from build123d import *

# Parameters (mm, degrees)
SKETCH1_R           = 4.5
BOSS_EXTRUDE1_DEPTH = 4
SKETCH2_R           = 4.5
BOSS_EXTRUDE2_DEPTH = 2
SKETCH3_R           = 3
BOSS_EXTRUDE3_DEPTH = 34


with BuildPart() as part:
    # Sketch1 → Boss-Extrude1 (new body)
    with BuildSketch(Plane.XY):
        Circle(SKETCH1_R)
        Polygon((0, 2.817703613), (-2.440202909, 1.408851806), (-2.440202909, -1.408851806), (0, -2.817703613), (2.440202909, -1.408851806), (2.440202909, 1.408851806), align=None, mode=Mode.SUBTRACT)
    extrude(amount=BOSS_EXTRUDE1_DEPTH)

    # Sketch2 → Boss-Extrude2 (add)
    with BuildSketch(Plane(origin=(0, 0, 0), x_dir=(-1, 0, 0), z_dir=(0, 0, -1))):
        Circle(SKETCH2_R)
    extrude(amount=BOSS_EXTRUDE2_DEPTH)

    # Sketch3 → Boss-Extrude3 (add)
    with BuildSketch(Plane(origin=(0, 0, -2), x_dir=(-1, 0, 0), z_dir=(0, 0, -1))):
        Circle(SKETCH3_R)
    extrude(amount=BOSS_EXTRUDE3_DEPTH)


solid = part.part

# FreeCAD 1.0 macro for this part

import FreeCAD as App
import Part
import Sketcher

V = App.Vector
Q = App.Units.Quantity

doc = App.newDocument("Part")
params = doc.addObject("Spreadsheet::Sheet", "Params")
for row, (alias, value) in enumerate([
    ("sketch1_diameter", "9 mm"),
    ("pad1_length", "4 mm"),
    ("sketch2_diameter", "9 mm"),
    ("pad2_length", "2 mm"),
    ("sketch3_diameter", "6 mm"),
    ("pad3_length", "34 mm"),
], start=1):
    params.set(f"A{row}", alias)
    params.set(f"B{row}", "=" + value)
    params.setAlias(f"B{row}", alias)

body = doc.addObject("PartDesign::Body", "Body")

# Sketch on XY plane
sketch1 = body.newObject("Sketcher::SketchObject", "Sketch")
sketch1.AttachmentSupport = (doc.getObject("XY_Plane"), [""])
sketch1.MapMode = "FlatFace"
sketch1.addGeometry([
    Part.Circle(V(0, 0, 0), V(0, 0, 1), 4.5),  # 0
    Part.LineSegment(V(-2.4, 1.4, 0), V(0, 2.8, 0)),  # 1
    Part.LineSegment(V(0, 2.8, 0), V(2.4, 1.4, 0)),  # 2
    Part.LineSegment(V(2.4, 1.4, 0), V(2.4, -1.4, 0)),  # 3
    Part.LineSegment(V(2.4, -1.4, 0), V(0, -2.8, 0)),  # 4
    Part.LineSegment(V(0, -2.8, 0), V(-2.4, -1.4, 0)),  # 5
    Part.LineSegment(V(-2.4, -1.4, 0), V(-2.4, 1.4, 0)),  # 6
], False)
sketch1.addConstraint([
    Sketcher.Constraint("Coincident", 1, 2, 2, 1),
    Sketcher.Constraint("Coincident", 2, 2, 3, 1),
    Sketcher.Constraint("Coincident", 3, 2, 4, 1),
    Sketcher.Constraint("Coincident", 4, 2, 5, 1),
    Sketcher.Constraint("Coincident", 5, 2, 6, 1),
    Sketcher.Constraint("Coincident", 6, 2, 1, 1),
    Sketcher.Constraint("Vertical", 3),
    Sketcher.Constraint("Vertical", 6),
    Sketcher.Constraint("Coincident", 0, 3, -1, 1),
    Sketcher.Constraint("Symmetric", 1, 2, 4, 2, -1, 1),
    Sketcher.Constraint("Symmetric", 2, 2, 5, 2, -1, 1),
    Sketcher.Constraint("PointOnObject", 1, 2, -2),
    Sketcher.Constraint("Parallel", 1, 4),
    Sketcher.Constraint("Horizontal", 3, 2, 5, 2),
    Sketcher.Constraint("Diameter", 0, Q("9 mm")),
    Sketcher.Constraint("Angle", 1, Q("30 deg")),
    Sketcher.Constraint("DistanceY", 3, 2, 3, 1, Q("2.817704 mm")),
    Sketcher.Constraint("DistanceY", 2, 2, 1, 2, Q("1.408852 mm")),
])
sketch1.setExpression("Constraints[14]", "Params.sketch1_diameter")
pad1 = body.newObject("PartDesign::Pad", "Pad")
pad1.Profile = sketch1
pad1.setExpression("Length", "Params.pad1_length")

# Sketch on XY plane
sketch2 = body.newObject("Sketcher::SketchObject", "Sketch001")
sketch2.AttachmentSupport = (doc.getObject("XY_Plane"), [""])
sketch2.MapMode = "FlatFace"
sketch2.addGeometry(Part.Circle(V(0, 0, 0), V(0, 0, 1), 4.5), False)
sketch2.addConstraint([
    Sketcher.Constraint("Coincident", 0, 3, -1, 1),
    Sketcher.Constraint("Diameter", 0, Q("9 mm")),
])
sketch2.setExpression("Constraints[1]", "Params.sketch2_diameter")
pad2 = body.newObject("PartDesign::Pad", "Pad001")
pad2.Profile = sketch2
pad2.setExpression("Length", "Params.pad2_length")
pad2.Reversed = True

# Sketch on XY plane
sketch3 = body.newObject("Sketcher::SketchObject", "Sketch002")
sketch3.AttachmentSupport = (doc.getObject("XY_Plane"), [""])
sketch3.MapMode = "FlatFace"
sketch3.AttachmentOffset = App.Placement(V(0, 0, -2), App.Rotation())
sketch3.addGeometry(Part.Circle(V(0, 0, 0), V(0, 0, 1), 3), False)
sketch3.addConstraint([
    Sketcher.Constraint("Coincident", 0, 3, -1, 1),
    Sketcher.Constraint("Diameter", 0, Q("6 mm")),
])
sketch3.setExpression("Constraints[1]", "Params.sketch3_diameter")
pad3 = body.newObject("PartDesign::Pad", "Pad002")
pad3.Profile = sketch3
pad3.setExpression("Length", "Params.pad3_length")
pad3.Reversed = True

doc.recompute()
